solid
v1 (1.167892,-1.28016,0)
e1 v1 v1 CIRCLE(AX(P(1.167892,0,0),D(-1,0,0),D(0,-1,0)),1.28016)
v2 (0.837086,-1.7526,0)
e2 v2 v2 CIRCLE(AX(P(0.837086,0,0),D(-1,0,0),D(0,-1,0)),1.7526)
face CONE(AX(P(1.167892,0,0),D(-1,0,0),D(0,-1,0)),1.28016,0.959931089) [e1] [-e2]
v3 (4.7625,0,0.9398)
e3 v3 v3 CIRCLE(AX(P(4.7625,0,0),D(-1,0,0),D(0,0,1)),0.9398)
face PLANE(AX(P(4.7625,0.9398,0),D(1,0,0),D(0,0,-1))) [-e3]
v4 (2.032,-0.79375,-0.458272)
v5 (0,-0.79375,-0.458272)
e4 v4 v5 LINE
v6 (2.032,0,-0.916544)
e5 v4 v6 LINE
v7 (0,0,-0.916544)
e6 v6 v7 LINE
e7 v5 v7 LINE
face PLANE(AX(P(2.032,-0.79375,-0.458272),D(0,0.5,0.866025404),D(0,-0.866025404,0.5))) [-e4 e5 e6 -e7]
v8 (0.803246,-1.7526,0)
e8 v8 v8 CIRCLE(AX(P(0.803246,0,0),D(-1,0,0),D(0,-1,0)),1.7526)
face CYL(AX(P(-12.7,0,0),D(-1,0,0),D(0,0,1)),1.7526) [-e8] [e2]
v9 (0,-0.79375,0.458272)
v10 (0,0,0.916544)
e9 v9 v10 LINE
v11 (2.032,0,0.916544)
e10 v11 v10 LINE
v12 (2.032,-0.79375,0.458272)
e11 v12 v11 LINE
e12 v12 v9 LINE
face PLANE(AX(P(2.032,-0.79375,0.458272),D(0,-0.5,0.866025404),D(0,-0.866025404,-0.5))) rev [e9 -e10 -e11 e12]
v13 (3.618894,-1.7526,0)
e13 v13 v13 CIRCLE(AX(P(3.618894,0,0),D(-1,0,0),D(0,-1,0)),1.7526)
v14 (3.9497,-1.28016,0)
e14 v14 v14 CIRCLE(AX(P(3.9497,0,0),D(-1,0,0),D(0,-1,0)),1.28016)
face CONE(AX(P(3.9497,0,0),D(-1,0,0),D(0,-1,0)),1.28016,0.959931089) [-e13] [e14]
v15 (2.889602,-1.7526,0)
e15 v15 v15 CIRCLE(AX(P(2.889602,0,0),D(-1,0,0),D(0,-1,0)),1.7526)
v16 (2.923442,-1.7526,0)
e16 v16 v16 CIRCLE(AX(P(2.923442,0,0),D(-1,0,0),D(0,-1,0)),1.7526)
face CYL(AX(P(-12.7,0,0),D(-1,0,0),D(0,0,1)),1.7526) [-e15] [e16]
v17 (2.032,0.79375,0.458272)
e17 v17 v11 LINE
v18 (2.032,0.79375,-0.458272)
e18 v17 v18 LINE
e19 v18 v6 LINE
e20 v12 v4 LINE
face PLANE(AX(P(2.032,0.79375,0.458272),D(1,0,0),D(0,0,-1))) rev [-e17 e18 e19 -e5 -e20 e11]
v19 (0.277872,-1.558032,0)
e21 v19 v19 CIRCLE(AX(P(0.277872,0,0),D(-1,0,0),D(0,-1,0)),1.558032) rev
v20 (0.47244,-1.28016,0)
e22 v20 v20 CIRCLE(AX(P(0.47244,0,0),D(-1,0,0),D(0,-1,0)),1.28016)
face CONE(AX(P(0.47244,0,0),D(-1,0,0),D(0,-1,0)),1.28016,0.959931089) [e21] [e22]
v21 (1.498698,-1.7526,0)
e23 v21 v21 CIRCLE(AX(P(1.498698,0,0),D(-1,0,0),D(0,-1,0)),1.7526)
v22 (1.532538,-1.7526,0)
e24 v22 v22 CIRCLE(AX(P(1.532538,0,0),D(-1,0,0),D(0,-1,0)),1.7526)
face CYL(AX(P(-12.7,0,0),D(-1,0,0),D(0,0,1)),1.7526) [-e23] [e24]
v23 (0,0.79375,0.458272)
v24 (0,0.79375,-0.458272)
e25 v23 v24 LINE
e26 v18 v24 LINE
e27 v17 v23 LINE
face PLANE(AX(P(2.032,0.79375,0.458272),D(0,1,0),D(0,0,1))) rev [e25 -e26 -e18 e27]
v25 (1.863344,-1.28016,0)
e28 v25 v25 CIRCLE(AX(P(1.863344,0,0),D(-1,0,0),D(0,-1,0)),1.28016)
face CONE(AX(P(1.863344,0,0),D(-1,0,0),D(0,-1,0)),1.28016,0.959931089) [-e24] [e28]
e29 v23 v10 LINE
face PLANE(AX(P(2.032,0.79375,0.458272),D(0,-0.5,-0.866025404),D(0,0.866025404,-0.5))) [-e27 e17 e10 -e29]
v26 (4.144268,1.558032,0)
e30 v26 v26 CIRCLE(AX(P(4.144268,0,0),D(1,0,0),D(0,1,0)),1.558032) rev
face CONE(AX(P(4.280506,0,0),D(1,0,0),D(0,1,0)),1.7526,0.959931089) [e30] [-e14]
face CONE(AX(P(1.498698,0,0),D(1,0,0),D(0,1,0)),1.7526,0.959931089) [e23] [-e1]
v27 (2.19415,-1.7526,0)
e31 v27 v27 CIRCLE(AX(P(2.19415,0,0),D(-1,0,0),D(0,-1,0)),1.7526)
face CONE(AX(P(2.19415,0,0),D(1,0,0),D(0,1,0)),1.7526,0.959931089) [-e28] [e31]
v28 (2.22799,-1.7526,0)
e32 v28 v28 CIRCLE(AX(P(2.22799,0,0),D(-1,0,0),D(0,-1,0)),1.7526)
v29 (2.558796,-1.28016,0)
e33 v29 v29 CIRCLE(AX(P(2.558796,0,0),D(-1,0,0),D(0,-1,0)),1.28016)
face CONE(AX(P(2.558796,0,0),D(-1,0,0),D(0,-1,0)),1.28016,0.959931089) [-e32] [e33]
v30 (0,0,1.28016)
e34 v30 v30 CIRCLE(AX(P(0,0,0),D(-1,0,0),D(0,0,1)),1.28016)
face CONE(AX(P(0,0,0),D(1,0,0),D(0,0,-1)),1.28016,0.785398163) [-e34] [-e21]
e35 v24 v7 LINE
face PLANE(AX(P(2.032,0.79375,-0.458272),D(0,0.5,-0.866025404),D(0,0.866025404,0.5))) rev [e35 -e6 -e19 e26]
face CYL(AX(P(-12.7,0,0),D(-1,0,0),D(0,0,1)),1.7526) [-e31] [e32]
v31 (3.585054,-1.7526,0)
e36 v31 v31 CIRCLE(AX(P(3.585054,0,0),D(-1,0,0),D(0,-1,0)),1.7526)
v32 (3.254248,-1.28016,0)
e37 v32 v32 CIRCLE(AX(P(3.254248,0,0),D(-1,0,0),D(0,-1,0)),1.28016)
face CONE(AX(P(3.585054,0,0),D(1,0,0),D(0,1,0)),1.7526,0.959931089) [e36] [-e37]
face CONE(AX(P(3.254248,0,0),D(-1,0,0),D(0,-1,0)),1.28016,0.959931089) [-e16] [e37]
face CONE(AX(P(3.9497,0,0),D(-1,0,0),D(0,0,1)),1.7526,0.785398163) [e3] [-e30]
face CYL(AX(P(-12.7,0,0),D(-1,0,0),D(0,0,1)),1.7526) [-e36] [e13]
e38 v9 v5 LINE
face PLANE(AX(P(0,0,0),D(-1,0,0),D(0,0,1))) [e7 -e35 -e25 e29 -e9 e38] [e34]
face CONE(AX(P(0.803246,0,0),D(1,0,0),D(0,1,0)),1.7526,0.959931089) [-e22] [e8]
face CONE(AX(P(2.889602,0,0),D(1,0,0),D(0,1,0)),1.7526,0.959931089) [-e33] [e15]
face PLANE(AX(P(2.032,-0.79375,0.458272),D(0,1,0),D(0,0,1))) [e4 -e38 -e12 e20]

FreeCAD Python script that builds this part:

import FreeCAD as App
import Part
import Sketcher
Q = App.Units.Quantity


def add_polygon(sketch, points):
    """Adds a closed chain of lines whose ends are joined by coincident constraints."""
    first, n = sketch.GeometryCount, len(points)
    for a, b in zip(points, points[1:] + points[:1]):
        sketch.addGeometry(Part.LineSegment(App.Vector(*a, 0), App.Vector(*b, 0)), False)
    for i in range(n):
        sketch.addConstraint(Sketcher.Constraint("Coincident", first + i, 2, first + (i + 1) % n, 1))

doc = App.newDocument("Part")
params = doc.addObject("Spreadsheet::Sheet", "Params")
for row, (alias, value) in enumerate([
    ("sketch1_width", "0.1875 in"),
    ("sketch1_height", "0.037 in"),
    ("revolution_angle", "360 deg"),
    ("pocket1_length", "0.08 in"),
    ("groove_angle", "360 deg"),
    ("linearpattern_pitch", "0.695452 mm"),
], start=1):
    params.set(f"A{row}", alias)
    params.set(f"B{row}", "=" + value)
    params.setAlias(f"B{row}", alias)

body = doc.addObject("PartDesign::Body", "Body")

# Sketch on XY plane
sketch1 = body.newObject("Sketcher::SketchObject", "Sketch")
sketch1.AttachmentSupport = (doc.getObject("XY_Plane"), [""])
sketch1.MapMode = "FlatFace"
add_polygon(sketch1, [(0, 1.3), (0, 0), (4.8, 0), (4.8, 0.9), (3.9, 1.8), (0.5, 1.8)])  # lines 0-5
sketch1.addConstraint(Sketcher.Constraint("Vertical", 0))
sketch1.addConstraint(Sketcher.Constraint("Horizontal", 1))
sketch1.addConstraint(Sketcher.Constraint("Vertical", 2))
sketch1.addConstraint(Sketcher.Constraint("Horizontal", 4))
sketch1.addConstraint(Sketcher.Constraint("Coincident", 0, 2, -1, 1))
sketch1.addConstraint(Sketcher.Constraint("Perpendicular", 3, 5))
sketch1.addConstraint(Sketcher.Constraint("Angle", 3, Q("135 deg")))
sketch1.addConstraint(Sketcher.Constraint("DistanceX", 1, 1, 1, 2, Q("0.1875 in")))
sketch1.addConstraint(Sketcher.Constraint("DistanceY", 2, 1, 2, 2, Q("0.037 in")))
sketch1.addConstraint(Sketcher.Constraint("DistanceX", 4, 2, 4, 1, Q("0.1369 in")))
sketch1.addConstraint(Sketcher.Constraint("DistanceY", 0, 2, 0, 1, Q("0.0504 in")))
sketch1.setExpression("Constraints[13]", "Params.sketch1_width")
sketch1.setExpression("Constraints[14]", "Params.sketch1_height")
revolution = body.newObject("PartDesign::Revolution", "Revolution")
revolution.Profile = sketch1
revolution.ReferenceAxis = (sketch1, ["H_Axis"])
revolution.setExpression("Angle", "Params.revolution_angle")

# Sketch on YZ plane
sketch2 = body.newObject("Sketcher::SketchObject", "Sketch001")
sketch2.AttachmentSupport = (doc.getObject("YZ_Plane"), [""])
sketch2.MapMode = "FlatFace"
add_polygon(sketch2, [(0.8, 0.5), (0.8, -0.5), (0, -0.9), (-0.8, -0.5), (-0.8, 0.5), (0, 0.9)])  # lines 0-5
sketch2.addConstraint(Sketcher.Constraint("Vertical", 0))
sketch2.addConstraint(Sketcher.Constraint("Vertical", 3))
sketch2.addConstraint(Sketcher.Constraint("Symmetric", 0, 2, 3, 2, -1, 1))
sketch2.addConstraint(Sketcher.Constraint("Symmetric", 1, 2, 4, 2, -1, 1))
sketch2.addConstraint(Sketcher.Constraint("PointOnObject", 1, 2, -2))
sketch2.addConstraint(Sketcher.Constraint("Parallel", 2, 5))
sketch2.addConstraint(Sketcher.Constraint("Horizontal", 0, 2, 2, 2))
sketch2.addConstraint(Sketcher.Constraint("Angle", 1, Q("-150 deg")))
sketch2.addConstraint(Sketcher.Constraint("DistanceX", -1, 1, 0, 2, Q("0.03125 in")))
sketch2.addConstraint(Sketcher.Constraint("DistanceY", 0, 2, 0, 1, Q("0.916544 mm")))
pocket1 = body.newObject("PartDesign::Pocket", "Pocket")
pocket1.Profile = sketch2
pocket1.setExpression("Length", "Params.pocket1_length")
pocket1.Reversed = True

# Sketch on XY plane
sketch3 = body.newObject("Sketcher::SketchObject", "Sketch002")
sketch3.AttachmentSupport = (doc.getObject("XY_Plane"), [""])
sketch3.MapMode = "FlatFace"
add_polygon(sketch3, [(0.47, -1.28), (0.14, -1.75), (0.14, -2.19), (0.8, -2.19), (0.8, -1.75)])  # lines 0-4
sketch3.addConstraint(Sketcher.Constraint("Vertical", 1))
sketch3.addConstraint(Sketcher.Constraint("Horizontal", 2))
sketch3.addConstraint(Sketcher.Constraint("Vertical", 3))
sketch3.addConstraint(Sketcher.Constraint("Horizontal", 0, 2, 3, 2))
sketch3.addConstraint(Sketcher.Constraint("Equal", 0, 4))
sketch3.addConstraint(Sketcher.Constraint("Angle", 0, Q("-125 deg")))
sketch3.addConstraint(Sketcher.Constraint("DistanceY", 0, 2, -1, 1, Q("0.069 in")))
sketch3.addConstraint(Sketcher.Constraint("DistanceX", -1, 1, 4, 2, Q("0.0186 in")))
sketch3.addConstraint(Sketcher.Constraint("DistanceY", 4, 2, -1, 1, Q("0.0504 in")))
sketch3.addConstraint(Sketcher.Constraint("DistanceY", 1, 2, 1, 1, Q("0.43815 mm")))
groove = body.newObject("PartDesign::Groove", "Groove")
groove.Profile = sketch3
groove.ReferenceAxis = (sketch3, ["H_Axis"])
groove.setExpression("Angle", "Params.groove_angle")
doc.recompute()

linearpattern = body.newObject("PartDesign::LinearPattern", "LinearPattern")
linearpattern.Originals = [groove]
linearpattern.Direction = (doc.getObject("X_Axis"), [""])
linearpattern.Mode = "offset"
linearpattern.setExpression("Offset", "Params.linearpattern_pitch")
linearpattern.Occurrences = 6
body.Tip = linearpattern

doc.recompute()
